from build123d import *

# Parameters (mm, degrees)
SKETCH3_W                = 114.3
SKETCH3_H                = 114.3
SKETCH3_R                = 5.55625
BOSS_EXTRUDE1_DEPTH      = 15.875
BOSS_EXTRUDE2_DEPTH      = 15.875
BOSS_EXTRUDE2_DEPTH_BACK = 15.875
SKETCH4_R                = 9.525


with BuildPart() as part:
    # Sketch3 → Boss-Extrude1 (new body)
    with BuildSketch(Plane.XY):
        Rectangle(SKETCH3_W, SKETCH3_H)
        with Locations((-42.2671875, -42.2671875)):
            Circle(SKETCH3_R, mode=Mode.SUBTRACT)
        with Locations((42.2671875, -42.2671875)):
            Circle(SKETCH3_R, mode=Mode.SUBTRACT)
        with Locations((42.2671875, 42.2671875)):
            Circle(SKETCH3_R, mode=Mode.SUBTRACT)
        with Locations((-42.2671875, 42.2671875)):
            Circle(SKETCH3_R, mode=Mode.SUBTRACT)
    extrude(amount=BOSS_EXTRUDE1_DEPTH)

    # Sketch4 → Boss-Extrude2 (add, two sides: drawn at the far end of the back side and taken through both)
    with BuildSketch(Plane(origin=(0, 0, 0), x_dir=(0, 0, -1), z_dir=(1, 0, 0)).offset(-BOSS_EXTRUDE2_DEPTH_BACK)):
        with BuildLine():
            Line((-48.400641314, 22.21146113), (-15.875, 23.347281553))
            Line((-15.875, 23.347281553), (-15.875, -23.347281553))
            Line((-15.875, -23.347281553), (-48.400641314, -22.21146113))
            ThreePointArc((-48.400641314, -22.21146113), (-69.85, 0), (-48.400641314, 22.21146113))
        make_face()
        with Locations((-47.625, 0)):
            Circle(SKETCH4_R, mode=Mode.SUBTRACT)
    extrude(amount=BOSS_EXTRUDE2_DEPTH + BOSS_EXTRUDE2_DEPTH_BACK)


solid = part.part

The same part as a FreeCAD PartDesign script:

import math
import FreeCAD as App
import Part
import Sketcher

V = App.Vector
Q = App.Units.Quantity


def add_polygon(sketch, points):
    """Adds a closed chain of lines whose ends are joined by coincident constraints."""
    first, n = sketch.GeometryCount, len(points)
    for a, b in zip(points, points[1:] + points[:1]):
        sketch.addGeometry(Part.LineSegment(App.Vector(*a, 0), App.Vector(*b, 0)), False)
    for i in range(n):
        sketch.addConstraint(Sketcher.Constraint("Coincident", first + i, 2, first + (i + 1) % n, 1))

doc = App.newDocument("Part")
body = doc.addObject("PartDesign::Body", "Body")

# Sketch on XY plane
sketch1 = body.newObject("Sketcher::SketchObject", "Sketch")
sketch1.AttachmentSupport = (doc.getObject("XY_Plane"), [""])
sketch1.MapMode = "FlatFace"
add_polygon(sketch1, [(-57.15, 57.15), (-57.15, -57.15), (57.15, -57.15), (57.15, 57.15)])  # lines 0-3
sketch1.addGeometry(Part.Circle(V(-42.267187, -42.267187, 0), V(0, 0, 1), 5.55625), False)  # 4
sketch1.addGeometry(Part.Circle(V(42.267187, -42.267187, 0), V(0, 0, 1), 5.55625), False)  # 5
sketch1.addGeometry(Part.Circle(V(-42.267187, 42.267187, 0), V(0, 0, 1), 5.55625), False)  # 6
sketch1.addGeometry(Part.Circle(V(42.267187, 42.267187, 0), V(0, 0, 1), 5.55625), False)  # 7
sketch1.addConstraint([
    Sketcher.Constraint("Vertical", 0),
    Sketcher.Constraint("Horizontal", 1),
    Sketcher.Constraint("Vertical", 2),
    Sketcher.Constraint("Horizontal", 3),
    Sketcher.Constraint("Equal", 4, 5),
    Sketcher.Constraint("Equal", 5, 6),
    Sketcher.Constraint("Equal", 6, 7),
    Sketcher.Constraint("Symmetric", 5, 3, 6, 3, -1, 1),
    Sketcher.Constraint("Symmetric", 4, 3, 7, 3, -1, 1),
    Sketcher.Constraint("Symmetric", 0, 2, 2, 2, -1, 1),
    Sketcher.Constraint("Symmetric", 4, 3, 5, 3, -2),
    Sketcher.Constraint("Equal", 3, 0),
    Sketcher.Constraint("Diameter", 4, Q("0.4375 in")),
    Sketcher.Constraint("DistanceX", 1, 1, 1, 2, Q("4.5 in")),
    Sketcher.Constraint("DistanceX", 4, 3, 5, 3, Q("3.328125 in")),
    Sketcher.Constraint("DistanceY", 4, 3, 6, 3, Q("3.328125 in")),
])
pad1 = body.newObject("PartDesign::Pad", "Pad")
pad1.Profile = sketch1
pad1.Length = Q("0.625 in")

# Sketch on YZ plane
sketch2 = body.newObject("Sketcher::SketchObject", "Sketch001")
sketch2.AttachmentSupport = (doc.getObject("YZ_Plane"), [""])
sketch2.MapMode = "FlatFace"
sketch2.addGeometry([
    Part.LineSegment(V(23.347282, 15.875, 0), V(22.211461, 48.400641, 0)),  # 0
    Part.ArcOfCircle(Part.Circle(V(0, 47.625, 0), V(0, 0, 1), 22.225), math.radians(2), math.radians(178)),  # 1
    Part.LineSegment(V(-22.211461, 48.400641, 0), V(-23.347282, 15.875, 0)),  # 2
    Part.LineSegment(V(-23.347282, 15.875, 0), V(23.347282, 15.875, 0)),  # 3
    Part.Circle(V(0, 47.625, 0), V(0, 0, 1), 9.525),  # 4
], False)
sketch2.addConstraint([
    Sketcher.Constraint("Tangent", 0, 2, 1, 1),
    Sketcher.Constraint("Tangent", 1, 2, 2, 1),
    Sketcher.Constraint("Coincident", 2, 2, 3, 1),
    Sketcher.Constraint("Coincident", 3, 2, 0, 1),
    Sketcher.Constraint("Horizontal", 3),
    Sketcher.Constraint("Coincident", 4, 3, 1, 3),
    Sketcher.Constraint("Symmetric", 0, 2, 1, 2, -2),
    Sketcher.Constraint("Diameter", 4, Q("0.75 in")),
    Sketcher.Constraint("Angle", 0, Q("92 deg")),
    Sketcher.Constraint("Radius", 1, Q("0.875 in")),
    Sketcher.Constraint("DistanceY", 2, 2, 4, 3, Q("1.25 in")),
    Sketcher.Constraint("DistanceY", -1, 1, 1, 3, Q("1.875 in")),
])
pad2 = body.newObject("PartDesign::Pad", "Pad001")
pad2.Profile = sketch2
pad2.Type = "TwoLengths"
pad2.Length = Q("0.625 in")
pad2.Length2 = Q("0.625 in")

doc.recompute()
